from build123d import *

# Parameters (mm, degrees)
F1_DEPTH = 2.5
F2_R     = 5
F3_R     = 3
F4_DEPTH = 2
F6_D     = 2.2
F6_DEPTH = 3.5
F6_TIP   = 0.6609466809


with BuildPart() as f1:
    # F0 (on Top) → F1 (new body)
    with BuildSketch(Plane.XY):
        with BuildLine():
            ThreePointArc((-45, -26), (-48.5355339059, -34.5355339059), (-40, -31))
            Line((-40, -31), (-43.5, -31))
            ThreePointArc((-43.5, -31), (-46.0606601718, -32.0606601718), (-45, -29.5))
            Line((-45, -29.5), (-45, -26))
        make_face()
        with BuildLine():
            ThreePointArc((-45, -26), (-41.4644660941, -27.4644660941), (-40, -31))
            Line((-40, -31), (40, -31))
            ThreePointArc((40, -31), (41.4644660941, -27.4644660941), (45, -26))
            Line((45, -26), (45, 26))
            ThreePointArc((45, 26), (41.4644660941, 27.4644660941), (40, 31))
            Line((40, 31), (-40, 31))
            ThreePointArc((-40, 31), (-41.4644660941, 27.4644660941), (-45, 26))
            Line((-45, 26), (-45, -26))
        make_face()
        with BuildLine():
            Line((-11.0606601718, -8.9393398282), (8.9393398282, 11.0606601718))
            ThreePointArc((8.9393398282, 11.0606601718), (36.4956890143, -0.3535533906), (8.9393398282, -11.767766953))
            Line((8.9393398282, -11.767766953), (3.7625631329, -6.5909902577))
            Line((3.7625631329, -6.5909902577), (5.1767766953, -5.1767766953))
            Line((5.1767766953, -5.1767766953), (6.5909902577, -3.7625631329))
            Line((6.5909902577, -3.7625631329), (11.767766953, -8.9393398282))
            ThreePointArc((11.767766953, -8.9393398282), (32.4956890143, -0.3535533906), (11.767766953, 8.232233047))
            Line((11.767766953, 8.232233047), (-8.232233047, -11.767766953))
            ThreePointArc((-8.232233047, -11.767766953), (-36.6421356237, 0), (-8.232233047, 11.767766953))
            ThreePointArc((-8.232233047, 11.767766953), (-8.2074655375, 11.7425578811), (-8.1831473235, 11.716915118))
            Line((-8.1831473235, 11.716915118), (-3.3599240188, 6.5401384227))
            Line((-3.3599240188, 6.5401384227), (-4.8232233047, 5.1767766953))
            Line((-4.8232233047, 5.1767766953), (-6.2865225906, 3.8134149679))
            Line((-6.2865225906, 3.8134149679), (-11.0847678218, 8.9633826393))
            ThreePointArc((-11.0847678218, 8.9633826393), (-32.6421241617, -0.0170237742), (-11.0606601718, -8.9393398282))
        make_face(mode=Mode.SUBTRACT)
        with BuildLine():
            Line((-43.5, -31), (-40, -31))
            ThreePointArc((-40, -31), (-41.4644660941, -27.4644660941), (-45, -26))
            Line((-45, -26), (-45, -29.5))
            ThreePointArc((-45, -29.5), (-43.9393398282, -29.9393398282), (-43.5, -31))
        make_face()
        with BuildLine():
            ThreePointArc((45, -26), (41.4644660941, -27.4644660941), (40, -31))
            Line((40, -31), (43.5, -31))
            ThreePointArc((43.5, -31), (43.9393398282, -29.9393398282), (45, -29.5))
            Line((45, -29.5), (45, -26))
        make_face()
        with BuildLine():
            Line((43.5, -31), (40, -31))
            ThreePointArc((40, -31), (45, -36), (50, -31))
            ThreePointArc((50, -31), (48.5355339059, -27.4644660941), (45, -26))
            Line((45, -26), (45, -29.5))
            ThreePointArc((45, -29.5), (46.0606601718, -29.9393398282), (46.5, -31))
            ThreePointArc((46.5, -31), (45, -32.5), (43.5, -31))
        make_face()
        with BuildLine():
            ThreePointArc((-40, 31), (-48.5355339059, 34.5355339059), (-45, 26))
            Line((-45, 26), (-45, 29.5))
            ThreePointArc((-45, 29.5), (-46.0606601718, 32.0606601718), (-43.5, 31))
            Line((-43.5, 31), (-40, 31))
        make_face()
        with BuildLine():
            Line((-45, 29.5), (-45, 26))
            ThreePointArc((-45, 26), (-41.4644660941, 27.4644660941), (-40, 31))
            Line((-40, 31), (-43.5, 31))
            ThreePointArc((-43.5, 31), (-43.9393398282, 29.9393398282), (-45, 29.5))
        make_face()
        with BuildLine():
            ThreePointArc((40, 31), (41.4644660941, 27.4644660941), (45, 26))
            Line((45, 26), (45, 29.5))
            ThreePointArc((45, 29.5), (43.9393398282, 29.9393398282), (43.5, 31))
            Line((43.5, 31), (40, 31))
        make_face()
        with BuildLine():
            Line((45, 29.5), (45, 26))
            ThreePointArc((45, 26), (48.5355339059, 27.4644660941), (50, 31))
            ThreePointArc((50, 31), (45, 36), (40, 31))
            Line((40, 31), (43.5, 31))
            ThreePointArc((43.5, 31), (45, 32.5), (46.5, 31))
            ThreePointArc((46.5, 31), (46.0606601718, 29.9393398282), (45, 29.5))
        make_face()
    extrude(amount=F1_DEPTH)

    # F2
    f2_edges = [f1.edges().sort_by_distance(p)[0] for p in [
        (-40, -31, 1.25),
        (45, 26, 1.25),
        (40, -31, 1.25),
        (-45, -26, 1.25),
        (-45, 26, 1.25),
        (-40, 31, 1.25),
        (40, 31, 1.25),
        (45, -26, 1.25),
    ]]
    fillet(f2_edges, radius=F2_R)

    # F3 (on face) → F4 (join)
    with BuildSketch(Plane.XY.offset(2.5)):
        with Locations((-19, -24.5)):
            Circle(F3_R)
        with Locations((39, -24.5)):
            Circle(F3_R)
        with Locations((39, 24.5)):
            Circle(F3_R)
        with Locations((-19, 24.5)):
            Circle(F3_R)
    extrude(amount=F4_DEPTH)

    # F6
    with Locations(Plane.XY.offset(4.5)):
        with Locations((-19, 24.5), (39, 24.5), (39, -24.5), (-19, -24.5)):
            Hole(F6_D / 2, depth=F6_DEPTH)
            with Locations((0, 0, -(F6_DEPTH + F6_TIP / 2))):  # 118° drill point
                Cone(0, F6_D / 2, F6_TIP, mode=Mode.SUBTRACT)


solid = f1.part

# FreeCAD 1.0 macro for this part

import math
import FreeCAD as App
import Part
import Sketcher

V = App.Vector
Q = App.Units.Quantity


def edges_at(feature, points):
    """Names of the edges that pass closest to the given points."""
    edges = feature.Shape.Edges
    near = lambda p: min(range(len(edges)), key=lambda i: edges[i].distToShape(Part.Vertex(*p))[0])
    return sorted({f"Edge{near(p) + 1}" for p in points})

doc = App.newDocument("Part")
body = doc.addObject("PartDesign::Body", "Body")

# Sketch on XY plane
sketch1 = body.newObject("Sketcher::SketchObject", "Sketch")
sketch1.AttachmentSupport = (doc.getObject("XY_Plane"), [""])
sketch1.MapMode = "FlatFace"
sketch1.addGeometry(Part.ArcOfCircle(Part.Circle(V(-45, -31, 0), V(0, 0, 1), 5), math.radians(90), math.radians(360)), False)
sketch1.addGeometry(Part.LineSegment(V(-40, -31, 0), V(40, -31, 0)), False)
sketch1.addGeometry(Part.ArcOfCircle(Part.Circle(V(45, -31, 0), V(0, 0, 1), 5), math.radians(180), math.radians(360)), False)
sketch1.addGeometry(Part.ArcOfCircle(Part.Circle(V(45, -31, 0), V(0, 0, 1), 5), math.radians(0), math.radians(90)), False)
sketch1.addGeometry(Part.LineSegment(V(45, -26, 0), V(45, 26, 0)), False)
sketch1.addGeometry(Part.ArcOfCircle(Part.Circle(V(45, 31, 0), V(0, 0, 1), 5), math.radians(-90), math.radians(0)), False)
sketch1.addGeometry(Part.ArcOfCircle(Part.Circle(V(45, 31, 0), V(0, 0, 1), 5), math.radians(0), math.radians(180)), False)
sketch1.addGeometry(Part.LineSegment(V(40, 31, 0), V(-40, 31, 0)), False)
sketch1.addGeometry(Part.ArcOfCircle(Part.Circle(V(-45, 31, 0), V(0, 0, 1), 5), math.radians(0), math.radians(270)), False)
sketch1.addGeometry(Part.LineSegment(V(-45, 26, 0), V(-45, -26, 0)), False)
sketch1.addGeometry(Part.ArcOfCircle(Part.Circle(V(45, 31, 0), V(0, 0, 1), 1.5), math.radians(180), math.radians(270)), False)
sketch1.addGeometry(Part.ArcOfCircle(Part.Circle(V(45, 31, 0), V(0, 0, 1), 1.5), math.radians(0), math.radians(180)), False)
sketch1.addGeometry(Part.ArcOfCircle(Part.Circle(V(45, 31, 0), V(0, 0, 1), 1.5), math.radians(-90), math.radians(0)), False)
sketch1.addGeometry(Part.ArcOfCircle(Part.Circle(V(45, -31, 0), V(0, 0, 1), 1.5), math.radians(90), math.radians(180)), False)
sketch1.addGeometry(Part.ArcOfCircle(Part.Circle(V(45, -31, 0), V(0, 0, 1), 1.5), math.radians(0), math.radians(90)), False)
sketch1.addGeometry(Part.ArcOfCircle(Part.Circle(V(45, -31, 0), V(0, 0, 1), 1.5), math.radians(180), math.radians(360)), False)
sketch1.addGeometry(Part.ArcOfCircle(Part.Circle(V(-45, -31, 0), V(0, 0, 1), 1.5), math.radians(90), math.radians(360)), False)
sketch1.addGeometry(Part.ArcOfCircle(Part.Circle(V(-45, -31, 0), V(0, 0, 1), 1.5), math.radians(0), math.radians(90)), False)
sketch1.addGeometry(Part.LineSegment(V(-11.06, -8.94, 0), V(8.94, 11.06, 0)), False)
sketch1.addGeometry(Part.ArcOfCircle(Part.Circle(V(20.35, -0.35, 0), V(0, 0, 1), 16.14), math.radians(-135), math.radians(135)), False)
sketch1.addGeometry(Part.LineSegment(V(8.94, -11.77, 0), V(3.76, -6.59, 0)), False)
sketch1.addGeometry(Part.LineSegment(V(3.76, -6.59, 0), V(6.59, -3.76, 0)), False)
sketch1.addGeometry(Part.LineSegment(V(6.59, -3.76, 0), V(11.77, -8.94, 0)), False)
sketch1.addGeometry(Part.ArcOfCircle(Part.Circle(V(20.35, -0.35, 0), V(0, 0, 1), 12.14), math.radians(-135), math.radians(135)), False)
sketch1.addGeometry(Part.LineSegment(V(11.77, 8.23, 0), V(-8.23, -11.77, 0)), False)
sketch1.addGeometry(Part.ArcOfCircle(Part.Circle(V(-20, 0, 0), V(0, 0, 1), 16.64), math.radians(45), math.radians(315)), False)
sketch1.addGeometry(Part.ArcOfCircle(Part.Circle(V(-9.65, 10.35, 0), V(0, 0, 1), 2), math.radians(42.98), math.radians(45)), False)
sketch1.addGeometry(Part.LineSegment(V(-8.18, 11.72, 0), V(-3.36, 6.54, 0)), False)
sketch1.addGeometry(Part.LineSegment(V(-3.36, 6.54, 0), V(-6.29, 3.81, 0)), False)
sketch1.addGeometry(Part.LineSegment(V(-6.29, 3.81, 0), V(-11.08, 8.96, 0)), False)
sketch1.addGeometry(Part.ArcOfCircle(Part.Circle(V(-20, 0, 0), V(0, 0, 1), 12.64), math.radians(45), math.radians(315)), False)
sketch1.addGeometry(Part.ArcOfCircle(Part.Circle(V(-45, 31, 0), V(0, 0, 1), 1.5), math.radians(-90), math.radians(0)), False)
sketch1.addGeometry(Part.ArcOfCircle(Part.Circle(V(-45, 31, 0), V(0, 0, 1), 1.5), math.radians(0), math.radians(270)), False)
sketch1.addConstraint(Sketcher.Constraint("Coincident", 0, 2, 1, 1))
sketch1.addConstraint(Sketcher.Constraint("Coincident", 1, 2, 2, 1))
sketch1.addConstraint(Sketcher.Constraint("Tangent", 2, 2, 3, 1))
sketch1.addConstraint(Sketcher.Constraint("Coincident", 3, 2, 4, 1))
sketch1.addConstraint(Sketcher.Constraint("Coincident", 4, 2, 5, 1))
sketch1.addConstraint(Sketcher.Constraint("Tangent", 5, 2, 6, 1))
sketch1.addConstraint(Sketcher.Constraint("Coincident", 6, 2, 7, 1))
sketch1.addConstraint(Sketcher.Constraint("Coincident", 7, 2, 8, 1))
sketch1.addConstraint(Sketcher.Constraint("Coincident", 8, 2, 9, 1))
sketch1.addConstraint(Sketcher.Constraint("Coincident", 9, 2, 0, 1))
sketch1.addConstraint(Sketcher.Constraint("Tangent", 10, 1, 11, 2))
sketch1.addConstraint(Sketcher.Constraint("Tangent", 11, 1, 12, 2))
sketch1.addConstraint(Sketcher.Constraint("Tangent", 12, 1, 10, 2))
sketch1.addConstraint(Sketcher.Constraint("Tangent", 13, 1, 14, 2))
sketch1.addConstraint(Sketcher.Constraint("Tangent", 14, 1, 15, 2))
sketch1.addConstraint(Sketcher.Constraint("Tangent", 15, 1, 13, 2))
sketch1.addConstraint(Sketcher.Constraint("Tangent", 16, 1, 17, 2))
sketch1.addConstraint(Sketcher.Constraint("Coincident", 17, 1, 16, 2))
sketch1.addConstraint(Sketcher.Constraint("Tangent", 18, 2, 19, 2))
sketch1.addConstraint(Sketcher.Constraint("Tangent", 19, 1, 20, 1))
sketch1.addConstraint(Sketcher.Constraint("Coincident", 20, 2, 21, 1))
sketch1.addConstraint(Sketcher.Constraint("Coincident", 21, 2, 22, 1))
sketch1.addConstraint(Sketcher.Constraint("Tangent", 22, 2, 23, 1))
sketch1.addConstraint(Sketcher.Constraint("Tangent", 23, 2, 24, 1))
sketch1.addConstraint(Sketcher.Constraint("Tangent", 24, 2, 25, 2))
sketch1.addConstraint(Sketcher.Constraint("Tangent", 25, 1, 26, 2))
sketch1.addConstraint(Sketcher.Constraint("Tangent", 26, 1, 27, 1))
sketch1.addConstraint(Sketcher.Constraint("Coincident", 27, 2, 28, 1))
sketch1.addConstraint(Sketcher.Constraint("Coincident", 28, 2, 29, 1))
sketch1.addConstraint(Sketcher.Constraint("Coincident", 29, 2, 30, 1))
sketch1.addConstraint(Sketcher.Constraint("Tangent", 30, 2, 18, 1))
sketch1.addConstraint(Sketcher.Constraint("Tangent", 31, 1, 32, 2))
sketch1.addConstraint(Sketcher.Constraint("Coincident", 32, 1, 31, 2))
sketch1.addConstraint(Sketcher.Constraint("Horizontal", 1))
sketch1.addConstraint(Sketcher.Constraint("Vertical", 4))
sketch1.addConstraint(Sketcher.Constraint("Horizontal", 7))
sketch1.addConstraint(Sketcher.Constraint("Vertical", 9))
sketch1.addConstraint(Sketcher.Constraint("Coincident", 10, 3, 5, 3))
sketch1.addConstraint(Sketcher.Constraint("Coincident", 13, 3, 2, 3))
sketch1.addConstraint(Sketcher.Constraint("Coincident", 16, 3, 0, 3))
sketch1.addConstraint(Sketcher.Constraint("Coincident", 23, 3, 19, 3))
sketch1.addConstraint(Sketcher.Constraint("Coincident", 30, 3, 25, 3))
sketch1.addConstraint(Sketcher.Constraint("Coincident", 31, 3, 8, 3))
sketch1.addConstraint(Sketcher.Constraint("Equal", 0, 2))
sketch1.addConstraint(Sketcher.Constraint("Equal", 2, 3))
sketch1.addConstraint(Sketcher.Constraint("Equal", 3, 5))
sketch1.addConstraint(Sketcher.Constraint("Equal", 5, 6))
sketch1.addConstraint(Sketcher.Constraint("Equal", 6, 8))
sketch1.addConstraint(Sketcher.Constraint("Equal", 12, 13))
sketch1.addConstraint(Sketcher.Constraint("Equal", 15, 16))
sketch1.addConstraint(Sketcher.Constraint("Equal", 17, 31))
sketch1.addConstraint(Sketcher.Constraint("Symmetric", 0, 3, 5, 3, -1, 1))
sketch1.addConstraint(Sketcher.Constraint("Symmetric", 2, 3, 8, 3, -1, 1))
sketch1.addConstraint(Sketcher.Constraint("Symmetric", 0, 3, 2, 3, -2))
sketch1.addConstraint(Sketcher.Constraint("Symmetric", 24, 2, 25, 1, -1))
sketch1.addConstraint(Sketcher.Constraint("Perpendicular", 18, 20))
sketch1.addConstraint(Sketcher.Constraint("Perpendicular", 20, 21))
sketch1.addConstraint(Sketcher.Constraint("Perpendicular", 21, 22))
sketch1.addConstraint(Sketcher.Constraint("Perpendicular", 22, 24))
sketch1.addConstraint(Sketcher.Constraint("Perpendicular", 27, 28))
sketch1.addConstraint(Sketcher.Constraint("Perpendicular", 28, 29))
sketch1.addConstraint(Sketcher.Constraint("Horizontal", 17, 3, 0, 2))
sketch1.addConstraint(Sketcher.Constraint("Horizontal", 1, 2, 2, 2))
sketch1.addConstraint(Sketcher.Constraint("Horizontal", 32, 3, 5, 2))
sketch1.addConstraint(Sketcher.Constraint("Horizontal", 5, 2, 6, 2))
sketch1.addConstraint(Sketcher.Constraint("Horizontal", 7, 2, 10, 1))
sketch1.addConstraint(Sketcher.Constraint("Horizontal", 10, 1, 11, 1))
sketch1.addConstraint(Sketcher.Constraint("Horizontal", 2, 2, 14, 1))
sketch1.addConstraint(Sketcher.Constraint("Horizontal", 14, 1, 15, 1))
sketch1.addConstraint(Sketcher.Constraint("Horizontal", 15, 1, 17, 1))
sketch1.addConstraint(Sketcher.Constraint("Horizontal", 19, 1, 24, 2))
sketch1.addConstraint(Sketcher.Constraint("Horizontal", 22, 2, 30, 2))
sketch1.addConstraint(Sketcher.Constraint("Horizontal", 11, 1, 32, 1))
sketch1.addConstraint(Sketcher.Constraint("Vertical", 15, 3, 3, 2))
sketch1.addConstraint(Sketcher.Constraint("Vertical", 32, 3, 8, 2))
sketch1.addConstraint(Sketcher.Constraint("Vertical", 4, 2, 12, 1))
sketch1.addConstraint(Sketcher.Constraint("Vertical", 12, 1, 13, 1))
sketch1.addConstraint(Sketcher.Constraint("Vertical", 9, 2, 16, 1))
sketch1.addConstraint(Sketcher.Constraint("Vertical", 16, 1, 31, 1))
sketch1.addConstraint(Sketcher.Constraint("Equal", 21, 28))
sketch1.addConstraint(Sketcher.Constraint("Radius", 0, Q("5 mm")))
sketch1.addConstraint(Sketcher.Constraint("Radius", 26, Q("2 mm")))
sketch1.addConstraint(Sketcher.Constraint("Radius", 10, Q("1.5 mm")))
sketch1.addConstraint(Sketcher.Constraint("DistanceX", 1, 1, 1, 2, Q("80 mm")))
sketch1.addConstraint(Sketcher.Constraint("DistanceY", 4, 1, 4, 2, Q("52 mm")))
sketch1.addConstraint(Sketcher.Constraint("Distance", 21, Q("4 mm")))
sketch1.addConstraint(Sketcher.Constraint("DistanceX", 25, 3, -1, 1, Q("20 mm")))
sketch1.addConstraint(Sketcher.Constraint("DistanceX", 26, 3, 19, 3, Q("30 mm")))
sketch1.addConstraint(Sketcher.Constraint("Radius", 25, Q("16.642136 mm")))
sketch1.addConstraint(Sketcher.Constraint("DistanceX", 26, 3, 26, 1, Q("1.463299 mm")))
sketch1.addConstraint(Sketcher.Constraint("DistanceY", 21, 2, 27, 2, Q("10.302702 mm")))
sketch1.addConstraint(Sketcher.Constraint("DistanceY", 28, 2, 26, 1, Q("7.9035 mm")))
pad1 = body.newObject("PartDesign::Pad", "Pad")
pad1.Profile = sketch1
pad1.Length = 2.5
doc.recompute()

fillet = body.newObject("PartDesign::Fillet", "Fillet")
fillet.Base = (pad1, edges_at(pad1, [
    (-40, -31, 1.25),
    (45, 26, 1.25),
    (40, -31, 1.25),
    (-45, -26, 1.25),
    (-45, 26, 1.25),
    (-40, 31, 1.25),
    (40, 31, 1.25),
    (45, -26, 1.25),
]))
fillet.Radius = 5

# Sketch on XY plane
sketch2 = body.newObject("Sketcher::SketchObject", "Sketch001")
sketch2.AttachmentSupport = (doc.getObject("XY_Plane"), [""])
sketch2.MapMode = "FlatFace"
sketch2.AttachmentOffset = App.Placement(V(0, 0, 2.5), App.Rotation())
sketch2.addGeometry(Part.Circle(V(-19, -24.5, 0), V(0, 0, 1), 3), False)
sketch2.addGeometry(Part.Circle(V(39, -24.5, 0), V(0, 0, 1), 3), False)
sketch2.addGeometry(Part.Circle(V(39, 24.5, 0), V(0, 0, 1), 3), False)
sketch2.addGeometry(Part.Circle(V(-19, 24.5, 0), V(0, 0, 1), 3), False)
sketch2.addConstraint(Sketcher.Constraint("Equal", 0, 1))
sketch2.addConstraint(Sketcher.Constraint("Equal", 1, 2))
sketch2.addConstraint(Sketcher.Constraint("Equal", 2, 3))
sketch2.addConstraint(Sketcher.Constraint("Symmetric", 1, 3, 2, 3, -1))
sketch2.addConstraint(Sketcher.Constraint("Symmetric", 0, 3, 3, 3, -1))
sketch2.addConstraint(Sketcher.Constraint("Horizontal", 0, 3, 1, 3))
sketch2.addConstraint(Sketcher.Constraint("Diameter", 0, Q("6 mm")))
sketch2.addConstraint(Sketcher.Constraint("DistanceX", 0, 3, -1, 1, Q("19 mm")))
sketch2.addConstraint(Sketcher.Constraint("DistanceX", -1, 1, 1, 3, Q("39 mm")))
sketch2.addConstraint(Sketcher.Constraint("DistanceY", 1, 3, 2, 3, Q("49 mm")))
pad2 = body.newObject("PartDesign::Pad", "Pad001")
pad2.Profile = sketch2
pad2.Length = 2

# Sketch on XY plane
sketch3 = body.newObject("Sketcher::SketchObject", "Sketch002")
sketch3.AttachmentSupport = (doc.getObject("XY_Plane"), [""])
sketch3.MapMode = "FlatFace"
sketch3.AttachmentOffset = App.Placement(V(0, 0, 4.5), App.Rotation())
sketch3.addGeometry(Part.Circle(V(-19, 24.5, 0), V(0, 0, 1), 1.1), False)
sketch3.addGeometry(Part.Circle(V(39, 24.5, 0), V(0, 0, 1), 1.1), False)
sketch3.addGeometry(Part.Circle(V(39, -24.5, 0), V(0, 0, 1), 1.1), False)
sketch3.addGeometry(Part.Circle(V(-19, -24.5, 0), V(0, 0, 1), 1.1), False)
sketch3.addConstraint(Sketcher.Constraint("Equal", 0, 1))
sketch3.addConstraint(Sketcher.Constraint("Equal", 1, 2))
sketch3.addConstraint(Sketcher.Constraint("Equal", 2, 3))
sketch3.addConstraint(Sketcher.Constraint("Symmetric", 1, 3, 2, 3, -1))
sketch3.addConstraint(Sketcher.Constraint("Symmetric", 0, 3, 3, 3, -1))
sketch3.addConstraint(Sketcher.Constraint("Horizontal", 0, 3, 1, 3))
sketch3.addConstraint(Sketcher.Constraint("Diameter", 0, Q("2.2 mm")))
sketch3.addConstraint(Sketcher.Constraint("DistanceX", 0, 3, -1, 1, Q("19 mm")))
sketch3.addConstraint(Sketcher.Constraint("DistanceX", -1, 1, 1, 3, Q("39 mm")))
sketch3.addConstraint(Sketcher.Constraint("DistanceY", 2, 3, 1, 3, Q("49 mm")))
doc.recompute()
hole = body.newObject("PartDesign::Hole", "Hole")
hole.Profile = sketch3
hole.ThreadType = "None"
hole.Diameter = 2.2
hole.DepthType = "Dimension"
hole.Depth = 3.5
hole.DrillPoint = "Angled"
hole.DrillPointAngle = 118

doc.recompute()
